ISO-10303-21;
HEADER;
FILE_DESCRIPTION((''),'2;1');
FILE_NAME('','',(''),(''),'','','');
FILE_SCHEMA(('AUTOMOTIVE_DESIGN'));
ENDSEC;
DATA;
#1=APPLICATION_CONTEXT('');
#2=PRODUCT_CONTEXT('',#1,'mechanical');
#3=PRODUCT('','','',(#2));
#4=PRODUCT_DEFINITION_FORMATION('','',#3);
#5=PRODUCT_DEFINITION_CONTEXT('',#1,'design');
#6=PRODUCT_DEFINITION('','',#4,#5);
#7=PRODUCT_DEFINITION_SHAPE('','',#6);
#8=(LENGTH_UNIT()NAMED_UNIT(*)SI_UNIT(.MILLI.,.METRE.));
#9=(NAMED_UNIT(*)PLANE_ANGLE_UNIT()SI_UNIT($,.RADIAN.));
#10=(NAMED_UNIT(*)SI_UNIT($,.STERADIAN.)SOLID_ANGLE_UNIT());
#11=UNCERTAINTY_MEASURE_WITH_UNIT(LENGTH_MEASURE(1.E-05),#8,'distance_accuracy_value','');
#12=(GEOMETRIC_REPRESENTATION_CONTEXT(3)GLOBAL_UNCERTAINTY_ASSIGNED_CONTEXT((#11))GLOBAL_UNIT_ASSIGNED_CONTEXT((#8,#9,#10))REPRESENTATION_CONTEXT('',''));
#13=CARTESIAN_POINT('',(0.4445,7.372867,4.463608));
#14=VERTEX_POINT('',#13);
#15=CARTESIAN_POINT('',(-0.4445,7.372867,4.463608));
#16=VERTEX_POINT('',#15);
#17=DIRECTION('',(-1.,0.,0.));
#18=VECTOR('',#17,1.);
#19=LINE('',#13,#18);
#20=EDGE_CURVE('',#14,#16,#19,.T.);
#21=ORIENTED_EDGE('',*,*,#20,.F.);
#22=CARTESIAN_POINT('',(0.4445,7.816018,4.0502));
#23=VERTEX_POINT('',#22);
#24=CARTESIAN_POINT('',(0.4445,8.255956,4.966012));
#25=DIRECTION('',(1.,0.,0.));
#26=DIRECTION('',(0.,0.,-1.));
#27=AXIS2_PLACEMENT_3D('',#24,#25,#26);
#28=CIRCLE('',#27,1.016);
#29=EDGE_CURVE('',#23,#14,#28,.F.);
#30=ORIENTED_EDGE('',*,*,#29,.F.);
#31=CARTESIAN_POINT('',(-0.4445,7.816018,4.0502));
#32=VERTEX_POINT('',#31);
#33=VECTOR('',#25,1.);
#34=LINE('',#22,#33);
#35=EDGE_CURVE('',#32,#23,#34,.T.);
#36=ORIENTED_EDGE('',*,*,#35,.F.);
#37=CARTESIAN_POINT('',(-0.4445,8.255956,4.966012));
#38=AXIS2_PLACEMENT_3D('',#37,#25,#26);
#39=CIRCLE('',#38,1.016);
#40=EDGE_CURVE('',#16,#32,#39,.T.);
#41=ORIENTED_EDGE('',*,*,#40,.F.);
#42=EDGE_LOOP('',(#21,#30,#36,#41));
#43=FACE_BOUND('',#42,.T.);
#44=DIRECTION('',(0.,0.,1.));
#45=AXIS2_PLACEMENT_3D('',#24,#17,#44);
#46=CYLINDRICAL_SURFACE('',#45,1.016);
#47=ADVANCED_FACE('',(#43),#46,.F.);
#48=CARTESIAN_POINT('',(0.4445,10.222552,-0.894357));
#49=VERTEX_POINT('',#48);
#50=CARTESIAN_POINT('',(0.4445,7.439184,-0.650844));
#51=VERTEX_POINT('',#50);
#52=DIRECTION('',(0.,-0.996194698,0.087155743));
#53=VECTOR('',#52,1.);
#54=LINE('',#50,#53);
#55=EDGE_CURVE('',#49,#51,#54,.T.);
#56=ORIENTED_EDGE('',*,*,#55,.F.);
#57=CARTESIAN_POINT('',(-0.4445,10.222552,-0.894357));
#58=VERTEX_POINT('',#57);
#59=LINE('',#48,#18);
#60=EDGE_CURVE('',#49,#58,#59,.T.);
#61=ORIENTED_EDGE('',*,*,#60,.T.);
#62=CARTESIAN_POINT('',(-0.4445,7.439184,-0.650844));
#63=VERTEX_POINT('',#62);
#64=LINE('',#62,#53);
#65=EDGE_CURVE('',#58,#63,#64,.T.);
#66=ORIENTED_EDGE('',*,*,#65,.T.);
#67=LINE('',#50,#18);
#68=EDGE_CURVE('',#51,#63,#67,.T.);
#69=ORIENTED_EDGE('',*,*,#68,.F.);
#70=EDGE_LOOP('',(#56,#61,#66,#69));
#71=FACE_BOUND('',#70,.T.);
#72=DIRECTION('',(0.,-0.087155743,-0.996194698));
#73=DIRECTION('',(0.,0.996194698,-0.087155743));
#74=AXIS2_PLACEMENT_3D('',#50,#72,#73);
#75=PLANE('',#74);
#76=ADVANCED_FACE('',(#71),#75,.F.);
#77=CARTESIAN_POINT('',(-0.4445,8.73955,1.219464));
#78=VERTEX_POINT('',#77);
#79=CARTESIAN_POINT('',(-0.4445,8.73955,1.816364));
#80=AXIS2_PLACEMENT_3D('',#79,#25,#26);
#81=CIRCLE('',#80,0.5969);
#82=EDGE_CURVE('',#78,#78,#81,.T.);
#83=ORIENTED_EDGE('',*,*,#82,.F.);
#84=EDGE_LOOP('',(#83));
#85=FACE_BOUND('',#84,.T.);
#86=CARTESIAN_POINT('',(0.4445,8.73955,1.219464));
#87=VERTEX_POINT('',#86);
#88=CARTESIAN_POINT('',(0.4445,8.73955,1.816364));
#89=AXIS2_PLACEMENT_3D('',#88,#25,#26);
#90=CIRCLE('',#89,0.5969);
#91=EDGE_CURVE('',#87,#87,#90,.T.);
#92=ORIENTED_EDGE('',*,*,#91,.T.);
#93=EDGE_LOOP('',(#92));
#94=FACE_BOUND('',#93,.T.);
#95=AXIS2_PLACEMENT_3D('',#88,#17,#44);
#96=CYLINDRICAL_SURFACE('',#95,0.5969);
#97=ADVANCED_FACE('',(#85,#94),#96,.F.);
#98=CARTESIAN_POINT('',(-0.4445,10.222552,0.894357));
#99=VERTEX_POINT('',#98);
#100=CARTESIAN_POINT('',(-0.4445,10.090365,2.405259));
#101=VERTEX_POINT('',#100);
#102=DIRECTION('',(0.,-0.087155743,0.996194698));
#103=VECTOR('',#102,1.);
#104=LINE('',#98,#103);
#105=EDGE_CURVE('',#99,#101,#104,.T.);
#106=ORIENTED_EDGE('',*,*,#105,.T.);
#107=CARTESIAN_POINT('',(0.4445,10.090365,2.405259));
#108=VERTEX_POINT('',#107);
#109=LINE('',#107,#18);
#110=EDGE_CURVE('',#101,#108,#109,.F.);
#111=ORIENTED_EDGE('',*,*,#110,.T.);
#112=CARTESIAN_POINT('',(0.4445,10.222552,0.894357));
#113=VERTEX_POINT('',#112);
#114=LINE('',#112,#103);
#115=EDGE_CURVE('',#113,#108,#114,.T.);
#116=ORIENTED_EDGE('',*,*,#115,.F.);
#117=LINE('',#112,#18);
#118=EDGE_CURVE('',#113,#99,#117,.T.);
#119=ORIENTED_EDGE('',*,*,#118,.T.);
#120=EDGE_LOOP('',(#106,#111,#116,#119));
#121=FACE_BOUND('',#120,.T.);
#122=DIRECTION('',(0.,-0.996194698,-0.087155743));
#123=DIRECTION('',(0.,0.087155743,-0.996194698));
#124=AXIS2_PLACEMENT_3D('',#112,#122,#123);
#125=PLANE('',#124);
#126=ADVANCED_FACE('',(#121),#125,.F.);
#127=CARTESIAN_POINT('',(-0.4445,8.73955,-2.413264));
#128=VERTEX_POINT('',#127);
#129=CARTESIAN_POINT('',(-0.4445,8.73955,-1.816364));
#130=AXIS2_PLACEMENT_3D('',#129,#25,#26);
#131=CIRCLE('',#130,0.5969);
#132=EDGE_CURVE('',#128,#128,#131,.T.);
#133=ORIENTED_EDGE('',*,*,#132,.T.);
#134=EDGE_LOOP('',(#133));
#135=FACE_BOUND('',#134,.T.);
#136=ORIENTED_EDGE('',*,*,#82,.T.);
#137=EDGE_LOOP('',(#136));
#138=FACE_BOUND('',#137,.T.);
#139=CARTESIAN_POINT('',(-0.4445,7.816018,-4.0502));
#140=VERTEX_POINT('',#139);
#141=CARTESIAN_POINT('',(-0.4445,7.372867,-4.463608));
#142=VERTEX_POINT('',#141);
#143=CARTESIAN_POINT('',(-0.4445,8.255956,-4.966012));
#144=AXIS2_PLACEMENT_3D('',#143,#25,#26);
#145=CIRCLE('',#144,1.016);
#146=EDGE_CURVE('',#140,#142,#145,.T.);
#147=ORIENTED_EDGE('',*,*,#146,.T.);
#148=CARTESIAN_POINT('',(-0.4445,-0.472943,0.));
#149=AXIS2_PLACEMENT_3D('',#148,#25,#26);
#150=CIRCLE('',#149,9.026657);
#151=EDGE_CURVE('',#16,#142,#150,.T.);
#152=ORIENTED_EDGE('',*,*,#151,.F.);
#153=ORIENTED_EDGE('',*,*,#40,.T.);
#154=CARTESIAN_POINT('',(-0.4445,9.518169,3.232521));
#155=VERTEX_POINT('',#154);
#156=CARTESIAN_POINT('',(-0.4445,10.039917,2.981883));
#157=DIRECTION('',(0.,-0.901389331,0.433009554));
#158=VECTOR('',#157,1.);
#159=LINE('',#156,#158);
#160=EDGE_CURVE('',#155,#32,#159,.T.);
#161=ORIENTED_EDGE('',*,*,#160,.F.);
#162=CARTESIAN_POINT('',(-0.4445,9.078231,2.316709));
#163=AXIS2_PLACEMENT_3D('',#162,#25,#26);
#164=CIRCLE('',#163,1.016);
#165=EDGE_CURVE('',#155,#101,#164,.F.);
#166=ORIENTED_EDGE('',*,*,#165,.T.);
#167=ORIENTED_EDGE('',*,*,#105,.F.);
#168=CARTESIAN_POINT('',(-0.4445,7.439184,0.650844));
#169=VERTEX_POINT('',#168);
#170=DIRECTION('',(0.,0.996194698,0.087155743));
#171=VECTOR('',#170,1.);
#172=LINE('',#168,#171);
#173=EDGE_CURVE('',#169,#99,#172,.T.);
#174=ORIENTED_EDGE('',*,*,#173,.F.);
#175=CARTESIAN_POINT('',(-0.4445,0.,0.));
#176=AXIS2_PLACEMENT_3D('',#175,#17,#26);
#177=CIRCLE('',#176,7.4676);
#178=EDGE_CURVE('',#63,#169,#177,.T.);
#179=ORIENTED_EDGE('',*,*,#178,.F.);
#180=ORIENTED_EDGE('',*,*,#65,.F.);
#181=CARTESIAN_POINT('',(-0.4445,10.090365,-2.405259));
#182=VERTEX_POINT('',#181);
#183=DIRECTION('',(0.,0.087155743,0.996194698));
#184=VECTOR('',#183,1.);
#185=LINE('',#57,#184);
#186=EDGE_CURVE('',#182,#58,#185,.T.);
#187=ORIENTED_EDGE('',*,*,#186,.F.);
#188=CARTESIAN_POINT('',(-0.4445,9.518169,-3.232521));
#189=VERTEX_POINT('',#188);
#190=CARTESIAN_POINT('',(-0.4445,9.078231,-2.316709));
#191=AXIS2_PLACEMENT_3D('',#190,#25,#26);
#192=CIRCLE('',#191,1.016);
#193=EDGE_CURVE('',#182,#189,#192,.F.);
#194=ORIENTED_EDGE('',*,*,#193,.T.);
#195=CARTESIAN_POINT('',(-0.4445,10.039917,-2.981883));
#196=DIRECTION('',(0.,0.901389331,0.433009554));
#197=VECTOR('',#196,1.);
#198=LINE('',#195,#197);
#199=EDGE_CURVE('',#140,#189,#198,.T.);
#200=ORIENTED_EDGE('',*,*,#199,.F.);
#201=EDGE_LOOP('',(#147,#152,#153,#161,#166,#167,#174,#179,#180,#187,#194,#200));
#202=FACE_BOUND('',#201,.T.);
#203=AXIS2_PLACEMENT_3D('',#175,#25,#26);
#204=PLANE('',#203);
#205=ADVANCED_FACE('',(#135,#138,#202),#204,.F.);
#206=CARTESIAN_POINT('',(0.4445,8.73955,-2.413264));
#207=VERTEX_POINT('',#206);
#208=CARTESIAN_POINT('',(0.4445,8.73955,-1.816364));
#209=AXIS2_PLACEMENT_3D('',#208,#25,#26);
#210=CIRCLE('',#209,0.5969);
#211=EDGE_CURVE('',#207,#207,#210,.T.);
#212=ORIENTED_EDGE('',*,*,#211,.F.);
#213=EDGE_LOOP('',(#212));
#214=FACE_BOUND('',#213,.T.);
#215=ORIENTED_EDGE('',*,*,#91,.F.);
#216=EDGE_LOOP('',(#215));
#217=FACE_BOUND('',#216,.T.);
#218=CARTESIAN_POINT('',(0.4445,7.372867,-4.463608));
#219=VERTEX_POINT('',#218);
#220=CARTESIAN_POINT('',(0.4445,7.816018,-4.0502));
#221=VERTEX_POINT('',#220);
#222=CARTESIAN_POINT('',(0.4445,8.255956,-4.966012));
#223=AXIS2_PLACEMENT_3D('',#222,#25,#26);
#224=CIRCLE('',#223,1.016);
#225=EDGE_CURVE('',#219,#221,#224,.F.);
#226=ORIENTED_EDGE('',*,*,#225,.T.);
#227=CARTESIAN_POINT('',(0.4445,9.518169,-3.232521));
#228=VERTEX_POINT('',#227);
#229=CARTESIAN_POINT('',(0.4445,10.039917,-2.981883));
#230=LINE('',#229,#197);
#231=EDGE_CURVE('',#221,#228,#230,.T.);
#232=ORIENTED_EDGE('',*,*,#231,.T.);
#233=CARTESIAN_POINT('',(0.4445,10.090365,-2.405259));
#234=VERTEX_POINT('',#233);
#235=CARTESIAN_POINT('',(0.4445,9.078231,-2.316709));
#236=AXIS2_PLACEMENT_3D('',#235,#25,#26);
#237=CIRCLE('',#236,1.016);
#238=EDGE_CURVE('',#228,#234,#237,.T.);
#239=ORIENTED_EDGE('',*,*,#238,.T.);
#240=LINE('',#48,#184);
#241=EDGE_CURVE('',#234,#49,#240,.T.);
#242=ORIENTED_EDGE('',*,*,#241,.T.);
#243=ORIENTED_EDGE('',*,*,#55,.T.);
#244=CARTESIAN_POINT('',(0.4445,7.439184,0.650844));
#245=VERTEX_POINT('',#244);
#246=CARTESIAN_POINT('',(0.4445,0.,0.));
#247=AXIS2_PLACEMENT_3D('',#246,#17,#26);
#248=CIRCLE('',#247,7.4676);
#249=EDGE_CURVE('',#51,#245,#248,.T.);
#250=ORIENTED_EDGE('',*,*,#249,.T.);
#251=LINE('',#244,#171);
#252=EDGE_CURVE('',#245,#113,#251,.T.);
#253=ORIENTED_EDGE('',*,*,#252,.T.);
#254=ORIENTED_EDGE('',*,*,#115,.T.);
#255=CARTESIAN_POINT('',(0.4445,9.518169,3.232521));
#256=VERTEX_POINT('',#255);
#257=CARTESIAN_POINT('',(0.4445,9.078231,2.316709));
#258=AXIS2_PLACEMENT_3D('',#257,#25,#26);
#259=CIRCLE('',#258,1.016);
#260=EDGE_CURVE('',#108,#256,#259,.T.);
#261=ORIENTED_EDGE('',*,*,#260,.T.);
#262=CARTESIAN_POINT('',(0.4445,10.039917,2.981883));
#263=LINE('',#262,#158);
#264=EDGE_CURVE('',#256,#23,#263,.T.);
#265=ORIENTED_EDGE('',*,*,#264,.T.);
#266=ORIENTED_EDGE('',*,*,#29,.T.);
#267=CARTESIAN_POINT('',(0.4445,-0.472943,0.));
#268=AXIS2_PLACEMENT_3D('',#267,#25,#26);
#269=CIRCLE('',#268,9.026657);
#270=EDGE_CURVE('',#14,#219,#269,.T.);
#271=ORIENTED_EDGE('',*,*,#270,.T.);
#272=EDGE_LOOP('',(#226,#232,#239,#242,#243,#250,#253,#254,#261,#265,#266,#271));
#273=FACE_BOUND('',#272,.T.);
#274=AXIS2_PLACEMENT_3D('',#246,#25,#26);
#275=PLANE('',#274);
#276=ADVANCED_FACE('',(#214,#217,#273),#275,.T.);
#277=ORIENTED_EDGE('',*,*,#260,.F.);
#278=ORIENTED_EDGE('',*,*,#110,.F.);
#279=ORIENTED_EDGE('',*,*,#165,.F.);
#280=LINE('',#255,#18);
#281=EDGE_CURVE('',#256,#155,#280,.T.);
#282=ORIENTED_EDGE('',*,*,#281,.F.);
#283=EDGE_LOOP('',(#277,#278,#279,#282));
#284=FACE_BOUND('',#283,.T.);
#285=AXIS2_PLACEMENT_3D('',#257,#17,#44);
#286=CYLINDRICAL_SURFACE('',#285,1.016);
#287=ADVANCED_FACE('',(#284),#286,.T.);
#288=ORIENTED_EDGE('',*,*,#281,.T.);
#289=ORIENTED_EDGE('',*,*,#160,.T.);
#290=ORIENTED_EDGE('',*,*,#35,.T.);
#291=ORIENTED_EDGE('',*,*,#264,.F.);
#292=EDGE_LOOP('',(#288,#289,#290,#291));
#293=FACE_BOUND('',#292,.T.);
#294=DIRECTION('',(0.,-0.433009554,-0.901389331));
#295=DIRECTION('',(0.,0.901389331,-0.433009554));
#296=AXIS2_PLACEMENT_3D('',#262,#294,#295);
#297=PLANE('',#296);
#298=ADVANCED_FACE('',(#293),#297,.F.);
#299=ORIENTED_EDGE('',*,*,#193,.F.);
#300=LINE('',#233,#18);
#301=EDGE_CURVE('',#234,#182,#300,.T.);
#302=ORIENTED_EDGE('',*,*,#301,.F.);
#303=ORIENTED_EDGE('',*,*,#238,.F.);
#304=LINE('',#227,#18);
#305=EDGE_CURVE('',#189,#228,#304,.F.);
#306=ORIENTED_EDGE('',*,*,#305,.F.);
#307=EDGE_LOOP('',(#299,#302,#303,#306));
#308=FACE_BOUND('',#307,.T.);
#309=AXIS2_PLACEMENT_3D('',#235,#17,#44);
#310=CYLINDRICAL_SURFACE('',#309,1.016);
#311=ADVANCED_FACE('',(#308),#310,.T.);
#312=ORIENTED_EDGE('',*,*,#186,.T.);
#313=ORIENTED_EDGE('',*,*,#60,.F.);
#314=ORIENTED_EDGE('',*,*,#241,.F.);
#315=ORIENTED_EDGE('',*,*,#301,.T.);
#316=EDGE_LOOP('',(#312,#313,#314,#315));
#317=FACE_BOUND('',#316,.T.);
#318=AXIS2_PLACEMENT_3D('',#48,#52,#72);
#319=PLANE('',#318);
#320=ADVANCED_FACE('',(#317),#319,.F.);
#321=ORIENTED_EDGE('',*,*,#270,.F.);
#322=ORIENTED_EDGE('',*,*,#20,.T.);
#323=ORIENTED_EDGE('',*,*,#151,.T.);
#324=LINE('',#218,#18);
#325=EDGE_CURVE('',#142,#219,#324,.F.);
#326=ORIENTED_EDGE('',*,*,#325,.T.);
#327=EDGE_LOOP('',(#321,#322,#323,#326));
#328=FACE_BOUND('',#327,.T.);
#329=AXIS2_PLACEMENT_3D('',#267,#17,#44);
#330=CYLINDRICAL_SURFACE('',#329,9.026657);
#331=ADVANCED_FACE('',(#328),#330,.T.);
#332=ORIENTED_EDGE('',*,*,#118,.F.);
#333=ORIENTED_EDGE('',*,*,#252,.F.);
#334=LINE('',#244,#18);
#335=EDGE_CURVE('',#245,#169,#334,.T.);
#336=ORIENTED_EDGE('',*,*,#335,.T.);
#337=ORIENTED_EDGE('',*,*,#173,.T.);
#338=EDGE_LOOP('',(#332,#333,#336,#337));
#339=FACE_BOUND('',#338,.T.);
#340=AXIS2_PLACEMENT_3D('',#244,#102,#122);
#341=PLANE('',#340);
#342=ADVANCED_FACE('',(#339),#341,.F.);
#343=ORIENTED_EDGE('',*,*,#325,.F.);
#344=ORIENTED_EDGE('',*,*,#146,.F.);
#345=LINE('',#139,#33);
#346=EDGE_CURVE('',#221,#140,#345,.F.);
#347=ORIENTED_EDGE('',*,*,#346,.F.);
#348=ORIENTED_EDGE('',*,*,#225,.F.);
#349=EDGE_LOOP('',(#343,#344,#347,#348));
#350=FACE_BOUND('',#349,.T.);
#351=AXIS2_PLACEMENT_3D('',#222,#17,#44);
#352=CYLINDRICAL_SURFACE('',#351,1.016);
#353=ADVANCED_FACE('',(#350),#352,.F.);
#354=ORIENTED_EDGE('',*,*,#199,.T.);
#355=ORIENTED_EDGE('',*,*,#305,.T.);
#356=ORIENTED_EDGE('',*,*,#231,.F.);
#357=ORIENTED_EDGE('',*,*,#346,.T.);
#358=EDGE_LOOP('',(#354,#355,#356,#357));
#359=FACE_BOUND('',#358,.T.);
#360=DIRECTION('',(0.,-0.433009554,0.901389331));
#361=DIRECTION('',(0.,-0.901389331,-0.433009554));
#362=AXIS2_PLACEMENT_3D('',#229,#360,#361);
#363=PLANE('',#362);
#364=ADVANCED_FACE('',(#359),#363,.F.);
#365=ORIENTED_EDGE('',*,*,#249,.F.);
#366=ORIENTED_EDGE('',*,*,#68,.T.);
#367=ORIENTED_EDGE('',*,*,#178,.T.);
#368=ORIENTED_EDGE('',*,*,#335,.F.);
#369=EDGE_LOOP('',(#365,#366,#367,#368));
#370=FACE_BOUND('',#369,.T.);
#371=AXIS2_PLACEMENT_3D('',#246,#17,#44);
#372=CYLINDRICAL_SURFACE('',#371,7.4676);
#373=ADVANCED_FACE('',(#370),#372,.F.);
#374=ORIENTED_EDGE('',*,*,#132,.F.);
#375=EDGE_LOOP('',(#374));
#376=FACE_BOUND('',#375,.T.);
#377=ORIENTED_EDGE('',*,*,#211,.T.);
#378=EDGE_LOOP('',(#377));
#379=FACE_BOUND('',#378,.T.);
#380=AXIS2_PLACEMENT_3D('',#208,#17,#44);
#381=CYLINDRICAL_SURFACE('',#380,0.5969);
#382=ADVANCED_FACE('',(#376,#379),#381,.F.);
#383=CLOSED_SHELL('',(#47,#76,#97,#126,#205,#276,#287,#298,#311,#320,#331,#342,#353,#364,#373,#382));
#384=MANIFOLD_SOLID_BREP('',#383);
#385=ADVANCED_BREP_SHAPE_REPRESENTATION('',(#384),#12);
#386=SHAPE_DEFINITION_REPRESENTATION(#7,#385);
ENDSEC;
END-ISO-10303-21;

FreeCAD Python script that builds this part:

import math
import FreeCAD as App
import Part
import Sketcher

V = App.Vector
Q = App.Units.Quantity


def edges_at(feature, points):
    """Names of the edges that pass closest to the given points."""
    edges = feature.Shape.Edges
    near = lambda p: min(range(len(edges)), key=lambda i: edges[i].distToShape(Part.Vertex(*p))[0])
    return sorted({f"Edge{near(p) + 1}" for p in points})

doc = App.newDocument("Part")
params = doc.addObject("Spreadsheet::Sheet", "Params")
for row, (alias, value) in enumerate([
    ("sketch1_diameter", "0.047 in"),
    ("sketch1_radius", "0.294 in"),
    ("sketch1_length", "0.11 in"),
    ("pad1_length", "0.035 in"),
    ("fillet_radius", "0.04 in"),
], start=1):
    params.set(f"A{row}", alias)
    params.set(f"B{row}", "=" + value)
    params.setAlias(f"B{row}", alias)

body = doc.addObject("PartDesign::Body", "Body")

sketch1 = body.newObject("Sketcher::SketchObject", "Sketch")
sketch1.AttachmentSupport = (doc.getObject("YZ_Plane"), [""])
sketch1.MapMode = "FlatFace"
sketch1.addGeometry(Part.LineSegment(V(7.4, 0.7, 0), V(10.2, 0.9, 0)), False)
sketch1.addGeometry(Part.LineSegment(V(10.2, 0.9, 0), V(10, 3, 0)), False)
sketch1.addGeometry(Part.LineSegment(V(10, 3, 0), V(7.5, 4.2, 0)), False)
sketch1.addGeometry(Part.ArcOfCircle(Part.Circle(V(-0.5, 0, 0), V(0, 0, 1), 9), math.radians(28), math.radians(332)), False)
sketch1.addGeometry(Part.LineSegment(V(7.5, -4.2, 0), V(10, -3, 0)), False)
sketch1.addGeometry(Part.LineSegment(V(10, -3, 0), V(10.2, -0.9, 0)), False)
sketch1.addGeometry(Part.LineSegment(V(10.2, -0.9, 0), V(7.4, -0.7, 0)), False)
sketch1.addGeometry(Part.ArcOfCircle(Part.Circle(V(0, 0, 0), V(0, 0, 1), 7.5), math.radians(5), math.radians(355)), False)
sketch1.addGeometry(Part.Circle(V(8.7, 1.8, 0), V(0, 0, 1), 0.6), False)
sketch1.addGeometry(Part.Circle(V(8.7, -1.8, 0), V(0, 0, 1), 0.6), False)
sketch1.addConstraint(Sketcher.Constraint("Coincident", 0, 2, 1, 1))
sketch1.addConstraint(Sketcher.Constraint("Coincident", 1, 2, 2, 1))
sketch1.addConstraint(Sketcher.Constraint("Coincident", 2, 2, 3, 1))
sketch1.addConstraint(Sketcher.Constraint("Coincident", 3, 2, 4, 1))
sketch1.addConstraint(Sketcher.Constraint("Coincident", 4, 2, 5, 1))
sketch1.addConstraint(Sketcher.Constraint("Coincident", 5, 2, 6, 1))
sketch1.addConstraint(Sketcher.Constraint("Coincident", 6, 2, 7, 2))
sketch1.addConstraint(Sketcher.Constraint("Coincident", 7, 1, 0, 1))
sketch1.addConstraint(Sketcher.Constraint("Coincident", 7, 3, -1, 1))
sketch1.addConstraint(Sketcher.Constraint("Equal", 8, 9))
sketch1.addConstraint(Sketcher.Constraint("Symmetric", 8, 3, 9, 3, -1))
sketch1.addConstraint(Sketcher.Constraint("Symmetric", 2, 2, 3, 2, -1))
sketch1.addConstraint(Sketcher.Constraint("Symmetric", 1, 2, 4, 2, -1))
sketch1.addConstraint(Sketcher.Constraint("Symmetric", 0, 2, 5, 2, -1))
sketch1.addConstraint(Sketcher.Constraint("Perpendicular", 0, 1))
sketch1.addConstraint(Sketcher.Constraint("Perpendicular", 5, 6))
sketch1.addConstraint(Sketcher.Constraint("Equal", 0, 2))
sketch1.addConstraint(Sketcher.Constraint("Diameter", 8, Q("0.047 in")))
sketch1.addConstraint(Sketcher.Constraint("Angle", 0, Q("5 deg")))
sketch1.addConstraint(Sketcher.Constraint("Radius", 7, Q("0.294 in")))
sketch1.addConstraint(Sketcher.Constraint("Distance", 0, Q("0.11 in")))
sketch1.addConstraint(Sketcher.Constraint("Distance", 1, Q("0.0825 in")))
sketch1.addConstraint(Sketcher.Constraint("Radius", 3, Q("9.026657 mm")))
sketch1.addConstraint(Sketcher.Constraint("DistanceX", 8, 3, 0, 2, Q("1.483001 mm")))
sketch1.addConstraint(Sketcher.Constraint("DistanceY", 6, 2, 0, 2, Q("1.545202 mm")))
sketch1.addConstraint(Sketcher.Constraint("DistanceY", 9, 3, 0, 2, Q("2.710721 mm")))
sketch1.addConstraint(Sketcher.Constraint("DistanceX", 3, 3, 1, 2, Q("10.51286 mm")))
sketch1.setExpression("Constraints[17]", "Params.sketch1_diameter")
sketch1.setExpression("Constraints[19]", "Params.sketch1_radius")
sketch1.setExpression("Constraints[20]", "Params.sketch1_length")
pad1 = body.newObject("PartDesign::Pad", "Pad")
pad1.Profile = sketch1
pad1.setExpression("Length", "Params.pad1_length")
pad1.Midplane = True
doc.recompute()

fillet = body.newObject("PartDesign::Fillet", "Fillet")
fillet.Base = (pad1, edges_at(pad1, [
    (0, 10.04, -2.982),
    (0, 7.521, -4.192),
    (0, 7.521, 4.192),
    (0, 10.04, 2.982),
]))
fillet.setExpression("Radius", "Params.fillet_radius")

doc.recompute()
